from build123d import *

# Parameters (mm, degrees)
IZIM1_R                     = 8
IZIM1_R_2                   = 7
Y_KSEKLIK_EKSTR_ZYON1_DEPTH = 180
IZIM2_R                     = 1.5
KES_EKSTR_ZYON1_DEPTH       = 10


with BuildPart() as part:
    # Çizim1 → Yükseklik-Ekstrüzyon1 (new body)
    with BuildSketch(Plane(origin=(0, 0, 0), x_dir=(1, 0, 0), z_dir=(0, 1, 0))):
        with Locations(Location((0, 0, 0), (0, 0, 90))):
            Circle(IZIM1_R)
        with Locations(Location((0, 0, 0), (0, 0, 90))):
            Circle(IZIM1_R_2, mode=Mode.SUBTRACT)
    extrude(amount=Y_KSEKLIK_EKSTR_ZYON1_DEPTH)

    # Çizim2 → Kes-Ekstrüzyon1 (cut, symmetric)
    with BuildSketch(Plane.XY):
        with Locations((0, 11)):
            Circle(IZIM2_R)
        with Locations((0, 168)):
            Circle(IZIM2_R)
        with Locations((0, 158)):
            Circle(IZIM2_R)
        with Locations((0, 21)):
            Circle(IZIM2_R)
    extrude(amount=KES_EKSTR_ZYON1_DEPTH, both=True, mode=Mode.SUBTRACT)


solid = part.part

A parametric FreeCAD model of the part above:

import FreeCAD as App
import Part
import Sketcher
from FreeCAD import Vector
Q = App.Units.Quantity

doc = App.newDocument("Part")
body = doc.addObject("PartDesign::Body", "Body")

sketch1 = doc.addObject("Sketcher::SketchObject", "Sketch")
body.addObject(sketch1)
sketch1.AttachmentSupport = (doc.XZ_Plane, [""])
sketch1.MapMode = "FlatFace"
sketch1.addGeometry(Part.Circle(Vector(0, 0, 0), Vector(0, 0, 1), 8), False)
sketch1.addGeometry(Part.Circle(Vector(0, 0, 0), Vector(0, 0, 1), 7), False)
sketch1.addConstraint(Sketcher.Constraint("Coincident", 0, 3, -1, 1))
sketch1.addConstraint(Sketcher.Constraint("Coincident", 1, 3, -1, 1))
sketch1.addConstraint(Sketcher.Constraint("Diameter", 0, Q("16 mm")))
sketch1.addConstraint(Sketcher.Constraint("Diameter", 1, Q("14 mm")))
pad1 = doc.addObject("PartDesign::Pad", "Pad")
body.addObject(pad1)
pad1.Profile = sketch1
pad1.Length = 180
pad1.Reversed = True

sketch2 = doc.addObject("Sketcher::SketchObject", "Sketch001")
body.addObject(sketch2)
sketch2.AttachmentSupport = (doc.XY_Plane, [""])
sketch2.MapMode = "FlatFace"
sketch2.addGeometry(Part.Circle(Vector(0, 11, 0), Vector(0, 0, 1), 1.5), False)
sketch2.addGeometry(Part.Circle(Vector(0, 168, 0), Vector(0, 0, 1), 1.5), False)
sketch2.addGeometry(Part.Circle(Vector(0, 158, 0), Vector(0, 0, 1), 1.5), False)
sketch2.addGeometry(Part.Circle(Vector(0, 21, 0), Vector(0, 0, 1), 1.5), False)
sketch2.addConstraint(Sketcher.Constraint("Equal", 0, 1))
sketch2.addConstraint(Sketcher.Constraint("Equal", 1, 2))
sketch2.addConstraint(Sketcher.Constraint("Equal", 2, 3))
sketch2.addConstraint(Sketcher.Constraint("PointOnObject", 0, 3, -2))
sketch2.addConstraint(Sketcher.Constraint("PointOnObject", 1, 3, -2))
sketch2.addConstraint(Sketcher.Constraint("PointOnObject", 2, 3, -2))
sketch2.addConstraint(Sketcher.Constraint("PointOnObject", 3, 3, -2))
sketch2.addConstraint(Sketcher.Constraint("Diameter", 0, Q("3 mm")))
sketch2.addConstraint(Sketcher.Constraint("DistanceY", -1, 1, 0, 3, Q("11 mm")))
sketch2.addConstraint(Sketcher.Constraint("DistanceY", -1, 1, 1, 3, Q("168 mm")))
sketch2.addConstraint(Sketcher.Constraint("DistanceY", -1, 1, 2, 3, Q("158 mm")))
sketch2.addConstraint(Sketcher.Constraint("DistanceY", -1, 1, 3, 3, Q("21 mm")))
pocket1 = doc.addObject("PartDesign::Pocket", "Pocket")
body.addObject(pocket1)
pocket1.Profile = sketch2
pocket1.Length = 20
pocket1.Midplane = True

doc.recompute()
